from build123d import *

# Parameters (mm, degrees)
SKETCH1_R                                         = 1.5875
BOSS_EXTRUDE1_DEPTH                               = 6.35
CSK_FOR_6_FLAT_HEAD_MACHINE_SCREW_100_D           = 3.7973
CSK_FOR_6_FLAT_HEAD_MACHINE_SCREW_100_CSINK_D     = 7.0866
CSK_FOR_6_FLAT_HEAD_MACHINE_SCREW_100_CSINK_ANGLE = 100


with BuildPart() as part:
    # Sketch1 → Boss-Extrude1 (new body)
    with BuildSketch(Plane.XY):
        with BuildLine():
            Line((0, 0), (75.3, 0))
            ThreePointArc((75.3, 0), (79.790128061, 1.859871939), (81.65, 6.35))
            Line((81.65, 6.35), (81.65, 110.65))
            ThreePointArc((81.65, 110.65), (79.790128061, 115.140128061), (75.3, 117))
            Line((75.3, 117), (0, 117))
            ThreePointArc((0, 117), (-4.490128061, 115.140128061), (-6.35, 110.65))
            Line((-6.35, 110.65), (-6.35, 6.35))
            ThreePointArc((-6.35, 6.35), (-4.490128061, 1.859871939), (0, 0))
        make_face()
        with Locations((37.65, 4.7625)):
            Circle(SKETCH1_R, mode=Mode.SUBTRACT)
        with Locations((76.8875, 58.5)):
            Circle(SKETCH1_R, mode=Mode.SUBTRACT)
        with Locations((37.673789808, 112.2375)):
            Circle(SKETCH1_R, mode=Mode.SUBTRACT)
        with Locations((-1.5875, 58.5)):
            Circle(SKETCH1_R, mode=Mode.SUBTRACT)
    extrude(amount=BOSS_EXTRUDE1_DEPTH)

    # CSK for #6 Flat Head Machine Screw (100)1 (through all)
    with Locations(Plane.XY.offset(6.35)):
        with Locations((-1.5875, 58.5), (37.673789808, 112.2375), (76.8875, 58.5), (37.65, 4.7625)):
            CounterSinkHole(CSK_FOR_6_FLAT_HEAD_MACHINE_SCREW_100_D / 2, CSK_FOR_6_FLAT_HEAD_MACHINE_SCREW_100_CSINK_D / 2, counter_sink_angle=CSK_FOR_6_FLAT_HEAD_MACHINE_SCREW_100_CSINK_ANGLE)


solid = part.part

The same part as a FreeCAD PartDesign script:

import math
import FreeCAD as App
import Part
import Sketcher
Q = App.Units.Quantity

doc = App.newDocument("Part")
params = doc.addObject("Spreadsheet::Sheet", "Params")
for row, (alias, value) in enumerate([
    ("sketch1_radius", "0.25 in"),
    ("sketch1_diameter", "0.125 in"),
    ("pad1_length", "0.25 in"),
    ("hole_diameter", "0.1495 in"),
    ("hole_csink_diameter", "0.279 in"),
], start=1):
    params.set(f"A{row}", alias)
    params.set(f"B{row}", "=" + value)
    params.setAlias(f"B{row}", alias)

body = doc.addObject("PartDesign::Body", "Body")

# Sketch on XY plane
sketch1 = body.newObject("Sketcher::SketchObject", "Sketch")
sketch1.AttachmentSupport = (doc.getObject("XY_Plane"), [""])
sketch1.MapMode = "FlatFace"
sketch1.addGeometry([
    Part.LineSegment(App.Vector(0, 0, 0), App.Vector(75.3, 0, 0)),  # 0
    Part.ArcOfCircle(Part.Circle(App.Vector(75.3, 6.3, 0), App.Vector(0, 0, 1), 6.3), math.radians(-90), math.radians(0)),  # 1
    Part.LineSegment(App.Vector(81.7, 6.3, 0), App.Vector(81.7, 110.7, 0)),  # 2
    Part.ArcOfCircle(Part.Circle(App.Vector(75.3, 110.7, 0), App.Vector(0, 0, 1), 6.3), math.radians(0), math.radians(90)),  # 3
    Part.LineSegment(App.Vector(75.3, 117, 0), App.Vector(0, 117, 0)),  # 4
    Part.ArcOfCircle(Part.Circle(App.Vector(0, 110.7, 0), App.Vector(0, 0, 1), 6.3), math.radians(90), math.radians(180)),  # 5
    Part.LineSegment(App.Vector(-6.3, 110.7, 0), App.Vector(-6.3, 6.3, 0)),  # 6
    Part.ArcOfCircle(Part.Circle(App.Vector(0, 6.3, 0), App.Vector(0, 0, 1), 6.3), math.radians(180), math.radians(270)),  # 7
    Part.Circle(App.Vector(37.6, 4.8, 0), App.Vector(0, 0, 1), 1.6),  # 8
    Part.Circle(App.Vector(-1.6, 58.5, 0), App.Vector(0, 0, 1), 1.6),  # 9
    Part.Circle(App.Vector(76.9, 58.5, 0), App.Vector(0, 0, 1), 1.6),  # 10
    Part.Circle(App.Vector(37.7, 112.2, 0), App.Vector(0, 0, 1), 1.6),  # 11
], False)
sketch1.addConstraint([
    Sketcher.Constraint("Tangent", 0, 2, 1, 1),
    Sketcher.Constraint("Tangent", 1, 2, 2, 1),
    Sketcher.Constraint("Tangent", 2, 2, 3, 1),
    Sketcher.Constraint("Tangent", 3, 2, 4, 1),
    Sketcher.Constraint("Tangent", 4, 2, 5, 1),
    Sketcher.Constraint("Tangent", 5, 2, 6, 1),
    Sketcher.Constraint("Tangent", 6, 2, 7, 1),
    Sketcher.Constraint("Tangent", 7, 2, 0, 1),
    Sketcher.Constraint("Horizontal", 0),
    Sketcher.Constraint("Vertical", 2),
    Sketcher.Constraint("Horizontal", 4),
    Sketcher.Constraint("Vertical", 6),
    Sketcher.Constraint("Coincident", 7, 2, -1, 1),
    Sketcher.Constraint("Equal", 1, 3),
    Sketcher.Constraint("Equal", 3, 5),
    Sketcher.Constraint("Equal", 5, 7),
    Sketcher.Constraint("Equal", 8, 9),
    Sketcher.Constraint("Equal", 9, 10),
    Sketcher.Constraint("Equal", 10, 11),
    Sketcher.Constraint("Horizontal", 9, 3, 10, 3),
    Sketcher.Constraint("Radius", 1, Q("0.25 in")),
    Sketcher.Constraint("Diameter", 8, Q("0.125 in")),
    Sketcher.Constraint("DistanceY", -1, 1, 8, 3, Q("0.1875 in")),
    Sketcher.Constraint("DistanceX", 9, 3, -1, 1, Q("0.0625 in")),
    Sketcher.Constraint("DistanceX", 1, 3, 10, 3, Q("0.0625 in")),
    Sketcher.Constraint("DistanceY", 3, 3, 11, 3, Q("0.0625 in")),
    Sketcher.Constraint("DistanceX", 0, 1, 0, 2, Q("75.3 mm")),
    Sketcher.Constraint("DistanceY", 2, 1, 2, 2, Q("104.3 mm")),
    Sketcher.Constraint("DistanceX", -1, 1, 8, 3, Q("37.65 mm")),
    Sketcher.Constraint("DistanceY", -1, 1, 9, 3, Q("58.5 mm")),
    Sketcher.Constraint("DistanceX", -1, 1, 11, 3, Q("37.67379 mm")),
])
sketch1.setExpression("Constraints[20]", "Params.sketch1_radius")
sketch1.setExpression("Constraints[21]", "Params.sketch1_diameter")
pad1 = body.newObject("PartDesign::Pad", "Pad")
pad1.Profile = sketch1
pad1.setExpression("Length", "Params.pad1_length")

# Sketch on XY plane
sketch2 = body.newObject("Sketcher::SketchObject", "Sketch001")
sketch2.AttachmentSupport = (doc.getObject("XY_Plane"), [""])
sketch2.MapMode = "FlatFace"
sketch2.AttachmentOffset = App.Placement(App.Vector(0, 0, 0.25 * 25.4), App.Rotation())
sketch2.addGeometry([
    Part.Circle(App.Vector(-1.6, 58.5, 0), App.Vector(0, 0, 1), 1.9),
    Part.Circle(App.Vector(37.7, 112.2, 0), App.Vector(0, 0, 1), 1.9),
    Part.Circle(App.Vector(76.9, 58.5, 0), App.Vector(0, 0, 1), 1.9),
    Part.Circle(App.Vector(37.6, 4.8, 0), App.Vector(0, 0, 1), 1.9),
], False)
sketch2.addConstraint([
    Sketcher.Constraint("Equal", 0, 1),
    Sketcher.Constraint("Equal", 1, 2),
    Sketcher.Constraint("Equal", 2, 3),
    Sketcher.Constraint("Horizontal", 0, 3, 2, 3),
    Sketcher.Constraint("Diameter", 0, Q("0.1495 in")),
    Sketcher.Constraint("DistanceX", 0, 3, -1, 1, Q("0.0625 in")),
    Sketcher.Constraint("DistanceY", -1, 1, 3, 3, Q("0.1875 in")),
    Sketcher.Constraint("DistanceY", -1, 1, 0, 3, Q("58.5 mm")),
    Sketcher.Constraint("DistanceY", -1, 1, 1, 3, Q("112.2375 mm")),
    Sketcher.Constraint("DistanceX", -1, 1, 2, 3, Q("76.8875 mm")),
    Sketcher.Constraint("DistanceX", -1, 1, 3, 3, Q("37.65 mm")),
    Sketcher.Constraint("DistanceX", -1, 1, 1, 3, Q("37.67379 mm")),
])
doc.recompute()
hole = body.newObject("PartDesign::Hole", "Hole")
hole.Profile = sketch2
hole.ThreadType = "None"
hole.setExpression("Diameter", "Params.hole_diameter")
hole.DepthType = "ThroughAll"
hole.HoleCutType = "Countersink"
hole.setExpression("HoleCutDiameter", "Params.hole_csink_diameter")
hole.HoleCutCountersinkAngle = 100

doc.recompute()
